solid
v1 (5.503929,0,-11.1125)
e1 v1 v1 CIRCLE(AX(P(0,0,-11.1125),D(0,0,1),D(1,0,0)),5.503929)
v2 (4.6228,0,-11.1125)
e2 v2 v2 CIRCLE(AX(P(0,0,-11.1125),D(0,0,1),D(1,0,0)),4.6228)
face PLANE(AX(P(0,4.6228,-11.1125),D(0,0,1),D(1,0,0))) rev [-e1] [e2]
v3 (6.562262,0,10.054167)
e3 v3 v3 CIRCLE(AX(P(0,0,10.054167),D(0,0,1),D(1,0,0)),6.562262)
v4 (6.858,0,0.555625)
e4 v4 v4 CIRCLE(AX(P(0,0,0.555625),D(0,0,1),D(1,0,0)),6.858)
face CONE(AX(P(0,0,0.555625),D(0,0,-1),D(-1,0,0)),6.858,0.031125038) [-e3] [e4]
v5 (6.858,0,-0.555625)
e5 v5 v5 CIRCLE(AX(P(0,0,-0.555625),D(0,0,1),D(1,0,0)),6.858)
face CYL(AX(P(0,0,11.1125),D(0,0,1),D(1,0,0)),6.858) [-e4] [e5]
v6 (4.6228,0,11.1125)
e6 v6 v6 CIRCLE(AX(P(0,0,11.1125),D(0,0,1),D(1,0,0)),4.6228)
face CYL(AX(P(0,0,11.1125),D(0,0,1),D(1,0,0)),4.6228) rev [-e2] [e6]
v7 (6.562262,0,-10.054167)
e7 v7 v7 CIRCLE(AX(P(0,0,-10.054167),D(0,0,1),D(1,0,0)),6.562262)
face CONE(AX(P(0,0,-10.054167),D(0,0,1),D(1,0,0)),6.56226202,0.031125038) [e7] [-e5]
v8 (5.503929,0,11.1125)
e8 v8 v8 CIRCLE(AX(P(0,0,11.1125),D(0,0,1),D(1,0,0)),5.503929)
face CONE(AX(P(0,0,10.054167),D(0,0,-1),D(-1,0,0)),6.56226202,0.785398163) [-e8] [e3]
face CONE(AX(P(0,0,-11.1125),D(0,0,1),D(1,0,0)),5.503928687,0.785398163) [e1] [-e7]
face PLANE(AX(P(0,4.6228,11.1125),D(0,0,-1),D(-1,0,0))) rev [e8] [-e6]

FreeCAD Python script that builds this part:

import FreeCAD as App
import Part
import Sketcher
from FreeCAD import Vector
Q = App.Units.Quantity


def add_polygon(sketch, points):
    """Adds a closed chain of lines whose ends are joined by coincident constraints."""
    first, n = sketch.GeometryCount, len(points)
    for a, b in zip(points, points[1:] + points[:1]):
        sketch.addGeometry(Part.LineSegment(App.Vector(*a, 0), App.Vector(*b, 0)), False)
    for i in range(n):
        sketch.addConstraint(Sketcher.Constraint("Coincident", first + i, 2, first + (i + 1) % n, 1))

doc = App.newDocument("Part")
body = doc.addObject("PartDesign::Body", "Body")

sketch1 = body.newObject("Sketcher::SketchObject", "Sketch")
sketch1.AttachmentSupport = (doc.getObject("YZ_Plane"), [""])
sketch1.MapMode = "FlatFace"
add_polygon(sketch1, [(5.5, 11.1), (4.6, 11.1), (4.6, -11.1), (5.5, -11.1), (6.6, -10.1), (6.9, -0.6), (6.9, 0.6), (6.6, 10.1)])
sketch1.addConstraint([
    Sketcher.Constraint("Horizontal", 0),
    Sketcher.Constraint("Vertical", 1),
    Sketcher.Constraint("Horizontal", 2),
    Sketcher.Constraint("Vertical", 5),
    Sketcher.Constraint("Symmetric", 3, 2, 6, 2, -1),
    Sketcher.Constraint("Symmetric", 2, 2, 7, 2, -1),
    Sketcher.Constraint("Perpendicular", 3, 7),
    Sketcher.Constraint("Equal", 4, 6),
    Sketcher.Constraint("DistanceY", 1, 2, 1, 1, Q("0.875 in")),
    Sketcher.Constraint("DistanceX", -1, 1, 4, 2, Q("0.27 in")),
    Sketcher.Constraint("DistanceX", -1, 1, 0, 2, Q("0.182 in")),
    Sketcher.Constraint("DistanceX", 0, 2, 0, 1, 0.881129),
    Sketcher.Constraint("DistanceY", 5, 1, 5, 2, 1.11125),
    Sketcher.Constraint("Distance", 3, 1.496709),
])
revolution = body.newObject("PartDesign::Revolution", "Revolution")
revolution.Profile = sketch1
revolution.ReferenceAxis = (sketch1, ["V_Axis"])
revolution.Angle = 360

doc.recompute()
